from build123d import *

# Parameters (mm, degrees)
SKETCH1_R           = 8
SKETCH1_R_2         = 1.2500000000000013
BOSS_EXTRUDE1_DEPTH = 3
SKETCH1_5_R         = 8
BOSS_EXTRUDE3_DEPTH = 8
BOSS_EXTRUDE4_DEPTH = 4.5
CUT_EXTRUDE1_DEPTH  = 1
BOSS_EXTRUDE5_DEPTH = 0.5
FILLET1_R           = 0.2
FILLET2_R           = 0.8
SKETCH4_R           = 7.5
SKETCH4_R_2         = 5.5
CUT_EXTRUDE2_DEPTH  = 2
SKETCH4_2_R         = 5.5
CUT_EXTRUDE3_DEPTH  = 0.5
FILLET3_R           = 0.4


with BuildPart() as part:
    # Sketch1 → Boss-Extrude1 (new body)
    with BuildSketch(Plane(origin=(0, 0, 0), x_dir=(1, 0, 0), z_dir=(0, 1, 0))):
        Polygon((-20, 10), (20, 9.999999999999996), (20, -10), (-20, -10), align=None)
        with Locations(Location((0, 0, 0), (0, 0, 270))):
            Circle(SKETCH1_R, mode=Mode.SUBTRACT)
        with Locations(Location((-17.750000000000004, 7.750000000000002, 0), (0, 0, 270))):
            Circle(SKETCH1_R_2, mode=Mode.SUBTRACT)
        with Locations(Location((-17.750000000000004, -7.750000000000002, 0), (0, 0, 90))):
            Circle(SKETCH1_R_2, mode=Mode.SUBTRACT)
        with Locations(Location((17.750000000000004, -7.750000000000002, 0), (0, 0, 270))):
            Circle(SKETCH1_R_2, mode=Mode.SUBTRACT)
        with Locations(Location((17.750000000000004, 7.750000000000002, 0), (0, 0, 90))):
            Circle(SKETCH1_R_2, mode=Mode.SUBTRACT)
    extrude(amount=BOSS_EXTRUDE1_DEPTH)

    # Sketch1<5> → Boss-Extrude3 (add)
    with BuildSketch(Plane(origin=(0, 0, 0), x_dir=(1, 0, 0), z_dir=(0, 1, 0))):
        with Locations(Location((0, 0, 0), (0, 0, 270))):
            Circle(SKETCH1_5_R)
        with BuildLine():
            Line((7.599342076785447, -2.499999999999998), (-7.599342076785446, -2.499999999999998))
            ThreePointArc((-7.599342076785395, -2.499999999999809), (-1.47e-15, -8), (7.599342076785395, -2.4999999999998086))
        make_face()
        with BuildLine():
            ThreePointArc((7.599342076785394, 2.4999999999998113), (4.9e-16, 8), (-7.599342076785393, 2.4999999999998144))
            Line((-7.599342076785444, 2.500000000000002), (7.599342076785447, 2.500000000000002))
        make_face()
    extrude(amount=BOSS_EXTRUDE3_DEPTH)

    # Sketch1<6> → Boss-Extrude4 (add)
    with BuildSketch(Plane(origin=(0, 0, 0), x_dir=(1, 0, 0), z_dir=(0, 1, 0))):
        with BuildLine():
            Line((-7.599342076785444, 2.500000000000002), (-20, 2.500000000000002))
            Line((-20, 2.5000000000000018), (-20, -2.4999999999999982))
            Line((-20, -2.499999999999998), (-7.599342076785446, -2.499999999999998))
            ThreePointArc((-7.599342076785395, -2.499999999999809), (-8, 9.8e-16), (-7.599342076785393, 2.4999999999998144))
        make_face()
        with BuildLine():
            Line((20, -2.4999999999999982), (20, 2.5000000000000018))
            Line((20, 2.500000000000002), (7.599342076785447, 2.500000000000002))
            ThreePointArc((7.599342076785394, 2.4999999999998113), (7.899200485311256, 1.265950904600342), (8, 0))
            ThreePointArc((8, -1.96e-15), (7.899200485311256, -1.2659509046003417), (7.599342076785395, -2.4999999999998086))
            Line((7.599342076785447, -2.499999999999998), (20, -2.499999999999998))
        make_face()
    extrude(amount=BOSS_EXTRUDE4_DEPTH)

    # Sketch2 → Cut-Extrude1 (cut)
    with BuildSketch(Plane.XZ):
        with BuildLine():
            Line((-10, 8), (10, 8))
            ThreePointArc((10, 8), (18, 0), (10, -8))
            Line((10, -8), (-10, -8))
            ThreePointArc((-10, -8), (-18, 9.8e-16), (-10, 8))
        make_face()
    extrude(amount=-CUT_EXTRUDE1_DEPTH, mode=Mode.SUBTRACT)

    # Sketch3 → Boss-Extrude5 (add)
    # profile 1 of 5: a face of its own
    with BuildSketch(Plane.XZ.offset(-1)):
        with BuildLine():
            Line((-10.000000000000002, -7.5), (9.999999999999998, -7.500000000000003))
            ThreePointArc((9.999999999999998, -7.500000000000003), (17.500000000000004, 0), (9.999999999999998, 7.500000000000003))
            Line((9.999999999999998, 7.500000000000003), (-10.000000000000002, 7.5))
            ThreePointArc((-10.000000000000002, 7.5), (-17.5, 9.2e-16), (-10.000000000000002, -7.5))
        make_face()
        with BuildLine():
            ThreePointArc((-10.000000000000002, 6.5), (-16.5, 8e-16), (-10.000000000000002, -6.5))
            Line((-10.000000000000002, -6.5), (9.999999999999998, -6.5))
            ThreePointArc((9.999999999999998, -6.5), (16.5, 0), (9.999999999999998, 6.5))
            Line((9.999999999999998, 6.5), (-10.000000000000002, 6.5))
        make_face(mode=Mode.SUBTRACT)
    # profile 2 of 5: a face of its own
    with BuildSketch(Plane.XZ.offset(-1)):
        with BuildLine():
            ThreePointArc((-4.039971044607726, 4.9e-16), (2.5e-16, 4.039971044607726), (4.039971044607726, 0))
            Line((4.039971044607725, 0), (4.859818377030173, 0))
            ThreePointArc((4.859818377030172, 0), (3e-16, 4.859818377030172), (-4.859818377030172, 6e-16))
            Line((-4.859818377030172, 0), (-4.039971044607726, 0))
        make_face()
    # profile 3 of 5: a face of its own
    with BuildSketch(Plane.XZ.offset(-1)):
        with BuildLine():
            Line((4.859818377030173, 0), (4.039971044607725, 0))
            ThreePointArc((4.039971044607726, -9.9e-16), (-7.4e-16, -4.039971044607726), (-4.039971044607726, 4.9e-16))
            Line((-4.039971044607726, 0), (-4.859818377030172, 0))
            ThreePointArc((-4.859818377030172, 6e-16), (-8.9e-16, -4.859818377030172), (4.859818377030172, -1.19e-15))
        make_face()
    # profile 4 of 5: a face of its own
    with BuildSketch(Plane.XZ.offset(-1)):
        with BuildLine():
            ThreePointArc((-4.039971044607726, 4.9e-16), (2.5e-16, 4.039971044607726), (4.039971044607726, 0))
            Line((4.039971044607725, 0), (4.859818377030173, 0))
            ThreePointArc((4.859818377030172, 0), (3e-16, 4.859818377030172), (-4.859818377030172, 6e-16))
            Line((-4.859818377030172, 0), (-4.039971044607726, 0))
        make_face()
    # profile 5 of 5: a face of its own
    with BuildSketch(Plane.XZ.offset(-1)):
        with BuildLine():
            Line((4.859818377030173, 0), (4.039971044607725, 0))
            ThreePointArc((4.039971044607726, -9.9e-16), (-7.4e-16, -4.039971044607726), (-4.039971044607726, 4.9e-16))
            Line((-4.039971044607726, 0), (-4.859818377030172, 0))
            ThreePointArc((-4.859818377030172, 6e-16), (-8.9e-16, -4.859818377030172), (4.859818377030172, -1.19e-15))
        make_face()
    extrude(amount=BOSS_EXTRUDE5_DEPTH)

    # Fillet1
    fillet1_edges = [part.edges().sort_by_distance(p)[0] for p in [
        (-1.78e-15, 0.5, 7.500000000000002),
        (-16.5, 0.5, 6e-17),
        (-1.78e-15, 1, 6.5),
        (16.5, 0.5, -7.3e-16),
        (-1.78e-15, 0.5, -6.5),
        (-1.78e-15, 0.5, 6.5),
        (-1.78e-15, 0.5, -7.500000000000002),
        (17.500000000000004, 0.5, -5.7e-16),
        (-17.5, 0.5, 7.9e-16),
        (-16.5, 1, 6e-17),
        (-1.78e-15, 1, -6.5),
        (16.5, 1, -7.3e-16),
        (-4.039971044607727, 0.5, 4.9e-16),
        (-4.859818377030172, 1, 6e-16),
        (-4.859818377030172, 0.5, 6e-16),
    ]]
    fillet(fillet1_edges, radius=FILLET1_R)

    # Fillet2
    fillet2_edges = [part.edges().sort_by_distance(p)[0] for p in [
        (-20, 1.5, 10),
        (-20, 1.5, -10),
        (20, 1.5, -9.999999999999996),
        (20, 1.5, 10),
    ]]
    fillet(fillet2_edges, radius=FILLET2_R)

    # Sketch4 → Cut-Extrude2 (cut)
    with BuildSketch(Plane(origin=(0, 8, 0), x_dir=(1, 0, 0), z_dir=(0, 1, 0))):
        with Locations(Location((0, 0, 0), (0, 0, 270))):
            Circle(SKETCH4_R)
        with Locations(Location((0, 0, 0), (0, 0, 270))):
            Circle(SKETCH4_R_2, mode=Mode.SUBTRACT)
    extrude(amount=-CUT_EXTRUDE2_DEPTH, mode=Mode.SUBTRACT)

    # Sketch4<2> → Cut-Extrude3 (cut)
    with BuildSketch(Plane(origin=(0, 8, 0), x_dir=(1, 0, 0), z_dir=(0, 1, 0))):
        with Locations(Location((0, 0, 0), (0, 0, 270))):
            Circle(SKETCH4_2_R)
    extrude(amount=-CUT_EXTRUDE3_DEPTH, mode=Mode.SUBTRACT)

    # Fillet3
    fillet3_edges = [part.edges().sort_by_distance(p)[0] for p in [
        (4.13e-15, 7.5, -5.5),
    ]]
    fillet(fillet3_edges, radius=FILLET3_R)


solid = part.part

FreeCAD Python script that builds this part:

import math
import FreeCAD as App
import Part
import Sketcher
from FreeCAD import Vector
Q = App.Units.Quantity


def edges_at(feature, points):
    """Names of the edges that pass closest to the given points."""
    edges = feature.Shape.Edges
    near = lambda p: min(range(len(edges)), key=lambda i: edges[i].distToShape(Part.Vertex(*p))[0])
    return sorted({f"Edge{near(p) + 1}" for p in points})

doc = App.newDocument("Part")
body = doc.addObject("PartDesign::Body", "Body")

sketch1 = body.newObject("Sketcher::SketchObject", "Sketch")
sketch1.AttachmentSupport = (doc.getObject("XZ_Plane"), [""])
sketch1.MapMode = "FlatFace"
sketch1.addGeometry([
    Part.LineSegment(Vector(20, -10, 0), Vector(-20, -10, 0)),
    Part.LineSegment(Vector(-20, -10, 0), Vector(-20, 10, 0)),
    Part.LineSegment(Vector(-20, 10, 0), Vector(20, 10, 0)),
    Part.LineSegment(Vector(20, 10, 0), Vector(20, -10, 0)),
    Part.Circle(Vector(17.75, 7.75, 0), Vector(0, 0, 1), 1.25),
    Part.Circle(Vector(-17.75, 7.75, 0), Vector(0, 0, 1), 1.25),
    Part.Circle(Vector(17.75, -7.75, 0), Vector(0, 0, 1), 1.25),
    Part.Circle(Vector(0, 0, 0), Vector(0, 0, 1), 8),
    Part.Circle(Vector(-17.75, -7.75, 0), Vector(0, 0, 1), 1.25),
], False)
sketch1.addConstraint([
    Sketcher.Constraint("Coincident", 0, 2, 1, 1),
    Sketcher.Constraint("Coincident", 1, 2, 2, 1),
    Sketcher.Constraint("Coincident", 2, 2, 3, 1),
    Sketcher.Constraint("Coincident", 3, 2, 0, 1),
    Sketcher.Constraint("Horizontal", 0),
    Sketcher.Constraint("Vertical", 1),
    Sketcher.Constraint("Horizontal", 2),
    Sketcher.Constraint("Vertical", 3),
    Sketcher.Constraint("Coincident", 7, 3, -1, 1),
    Sketcher.Constraint("Equal", 4, 5),
    Sketcher.Constraint("Equal", 5, 6),
    Sketcher.Constraint("Equal", 6, 8),
    Sketcher.Constraint("Symmetric", 5, 3, 6, 3, -1, 1),
    Sketcher.Constraint("Symmetric", 4, 3, 8, 3, -1, 1),
    Sketcher.Constraint("Symmetric", 0, 2, 2, 2, -1, 1),
    Sketcher.Constraint("Symmetric", 4, 3, 5, 3, -2),
    Sketcher.Constraint("Diameter", 7, Q("16 mm")),
    Sketcher.Constraint("Diameter", 4, Q("2.5 mm")),
    Sketcher.Constraint("DistanceX", 0, 2, 0, 1, Q("40 mm")),
    Sketcher.Constraint("DistanceY", 1, 1, 1, 2, Q("20 mm")),
    Sketcher.Constraint("DistanceX", 5, 3, 4, 3, Q("35.5 mm")),
    Sketcher.Constraint("DistanceY", 6, 3, 4, 3, Q("15.5 mm")),
])
pad1 = body.newObject("PartDesign::Pad", "Pad")
pad1.Profile = sketch1
pad1.Length = 3
pad1.Reversed = True

sketch2 = body.newObject("Sketcher::SketchObject", "Sketch001")
sketch2.AttachmentSupport = (doc.getObject("XZ_Plane"), [""])
sketch2.MapMode = "FlatFace"
sketch2.addGeometry(Part.Circle(Vector(0, 0, 0), Vector(0, 0, 1), 8), False)
sketch2.addConstraint([
    Sketcher.Constraint("Coincident", 0, 3, -1, 1),
    Sketcher.Constraint("Diameter", 0, Q("16 mm")),
])
pad2 = body.newObject("PartDesign::Pad", "Pad001")
pad2.Profile = sketch2
pad2.Length = 8
pad2.Reversed = True

sketch3 = body.newObject("Sketcher::SketchObject", "Sketch002")
sketch3.AttachmentSupport = (doc.getObject("XZ_Plane"), [""])
sketch3.MapMode = "FlatFace"
sketch3.addGeometry([
    Part.LineSegment(Vector(-7.599342, -2.5, 0), Vector(-20, -2.5, 0)),
    Part.LineSegment(Vector(-20, -2.5, 0), Vector(-20, 2.5, 0)),
    Part.LineSegment(Vector(-20, 2.5, 0), Vector(-7.599342, 2.5, 0)),
    Part.ArcOfCircle(Part.Circle(Vector(0, 0, 0), Vector(0, 0, 1), 8), math.radians(161.790043), math.radians(198.209957)),
    Part.LineSegment(Vector(20, 2.5, 0), Vector(20, -2.5, 0)),
    Part.LineSegment(Vector(20, -2.5, 0), Vector(7.599342, -2.5, 0)),
    Part.ArcOfCircle(Part.Circle(Vector(0, 0, 0), Vector(0, 0, 1), 8), math.radians(-18.209957), math.radians(18.209957)),
    Part.LineSegment(Vector(7.599342, 2.5, 0), Vector(20, 2.5, 0)),
], False)
sketch3.addConstraint([
    Sketcher.Constraint("Coincident", 0, 2, 1, 1),
    Sketcher.Constraint("Coincident", 1, 2, 2, 1),
    Sketcher.Constraint("Coincident", 2, 2, 3, 1),
    Sketcher.Constraint("Coincident", 3, 2, 0, 1),
    Sketcher.Constraint("Coincident", 4, 2, 5, 1),
    Sketcher.Constraint("Coincident", 5, 2, 6, 1),
    Sketcher.Constraint("Coincident", 6, 2, 7, 1),
    Sketcher.Constraint("Coincident", 7, 2, 4, 1),
    Sketcher.Constraint("Horizontal", 0),
    Sketcher.Constraint("Vertical", 1),
    Sketcher.Constraint("Horizontal", 2),
    Sketcher.Constraint("Vertical", 4),
    Sketcher.Constraint("Horizontal", 5),
    Sketcher.Constraint("Horizontal", 7),
    Sketcher.Constraint("Coincident", 3, 3, -1, 1),
    Sketcher.Constraint("Coincident", 6, 3, -1, 1),
    Sketcher.Constraint("Equal", 3, 6),
    Sketcher.Constraint("Symmetric", 1, 2, 4, 2, -1, 1),
    Sketcher.Constraint("Horizontal", 3, 2, 4, 2),
    Sketcher.Constraint("Horizontal", 2, 2, 6, 2),
    Sketcher.Constraint("Radius", 3, Q("8 mm")),
    Sketcher.Constraint("DistanceY", 1, 1, 1, 2, Q("5 mm")),
    Sketcher.Constraint("DistanceX", 0, 2, -1, 1, Q("20 mm")),
])
pad3 = body.newObject("PartDesign::Pad", "Pad002")
pad3.Profile = sketch3
pad3.Length = 4.5
pad3.Reversed = True

sketch4 = body.newObject("Sketcher::SketchObject", "Sketch003")
sketch4.AttachmentSupport = (doc.getObject("XZ_Plane"), [""])
sketch4.MapMode = "FlatFace"
sketch4.addGeometry([
    Part.LineSegment(Vector(10, 8, 0), Vector(-10, 8, 0)),
    Part.ArcOfCircle(Part.Circle(Vector(-10, 0, 0), Vector(0, 0, 1), 8), math.radians(90), math.radians(270)),
    Part.LineSegment(Vector(-10, -8, 0), Vector(10, -8, 0)),
    Part.ArcOfCircle(Part.Circle(Vector(10, 0, 0), Vector(0, 0, 1), 8), math.radians(-90), math.radians(90)),
], False)
sketch4.addConstraint([
    Sketcher.Constraint("Tangent", 0, 2, 1, 1),
    Sketcher.Constraint("Tangent", 1, 2, 2, 1),
    Sketcher.Constraint("Tangent", 2, 2, 3, 1),
    Sketcher.Constraint("Tangent", 3, 2, 0, 1),
    Sketcher.Constraint("Horizontal", 0),
    Sketcher.Constraint("Horizontal", 2),
    Sketcher.Constraint("Symmetric", 1, 3, 3, 3, -1, 1),
    Sketcher.Constraint("Radius", 1, Q("8 mm")),
    Sketcher.Constraint("DistanceX", 0, 2, 0, 1, Q("20 mm")),
])
pocket1 = body.newObject("PartDesign::Pocket", "Pocket")
pocket1.Profile = sketch4
pocket1.Length = 1

sketch5 = body.newObject("Sketcher::SketchObject", "Sketch004")
sketch5.AttachmentSupport = (doc.getObject("XZ_Plane"), [""])
sketch5.MapMode = "FlatFace"
sketch5.AttachmentOffset = App.Placement(Vector(0, 0, -1), App.Rotation())
sketch5.addGeometry([
    Part.LineSegment(Vector(-10, -7.5, 0), Vector(10, -7.5, 0)),
    Part.ArcOfCircle(Part.Circle(Vector(10, 0, 0), Vector(0, 0, 1), 7.5), math.radians(-90), math.radians(90)),
    Part.LineSegment(Vector(10, 7.5, 0), Vector(-10, 7.5, 0)),
    Part.ArcOfCircle(Part.Circle(Vector(-10, 0, 0), Vector(0, 0, 1), 7.5), math.radians(90), math.radians(270)),
    Part.ArcOfCircle(Part.Circle(Vector(-10, 0, 0), Vector(0, 0, 1), 6.5), math.radians(90), math.radians(270)),
    Part.LineSegment(Vector(-10, 6.5, 0), Vector(10, 6.5, 0)),
    Part.ArcOfCircle(Part.Circle(Vector(10, 0, 0), Vector(0, 0, 1), 6.5), math.radians(-90), math.radians(90)),
    Part.LineSegment(Vector(10, -6.5, 0), Vector(-10, -6.5, 0)),
    Part.Circle(Vector(0, 0, 0), Vector(0, 0, 1), 4.859818),
    Part.Circle(Vector(0, 0, 0), Vector(0, 0, 1), 4.039971),
], False)
sketch5.addConstraint([
    Sketcher.Constraint("Tangent", 0, 2, 1, 1),
    Sketcher.Constraint("Tangent", 1, 2, 2, 1),
    Sketcher.Constraint("Tangent", 2, 2, 3, 1),
    Sketcher.Constraint("Tangent", 3, 2, 0, 1),
    Sketcher.Constraint("Tangent", 4, 1, 5, 1),
    Sketcher.Constraint("Tangent", 5, 2, 6, 2),
    Sketcher.Constraint("Tangent", 6, 1, 7, 1),
    Sketcher.Constraint("Tangent", 7, 2, 4, 2),
    Sketcher.Constraint("Horizontal", 0),
    Sketcher.Constraint("Horizontal", 2),
    Sketcher.Constraint("Horizontal", 5),
    Sketcher.Constraint("Horizontal", 7),
    Sketcher.Constraint("Coincident", 8, 3, -1, 1),
    Sketcher.Constraint("Coincident", 9, 3, -1, 1),
    Sketcher.Constraint("Coincident", 4, 3, 3, 3),
    Sketcher.Constraint("Symmetric", 1, 3, 3, 3, -1, 1),
    Sketcher.Constraint("Vertical", 6, 3, 0, 2),
    Sketcher.Constraint("Radius", 1, Q("7.5 mm")),
    Sketcher.Constraint("Radius", 4, Q("6.5 mm")),
    Sketcher.Constraint("DistanceX", 0, 1, 0, 2, Q("20 mm")),
    Sketcher.Constraint("Diameter", 8, Q("9.719637 mm")),
    Sketcher.Constraint("Diameter", 9, Q("8.079942 mm")),
])
pad4 = body.newObject("PartDesign::Pad", "Pad003")
pad4.Profile = sketch5
pad4.Length = 0.5
doc.recompute()

fillet = body.newObject("PartDesign::Fillet", "Fillet")
fillet.Base = (pad4, edges_at(pad4, [
    (0, 0.5, 7.5),
    (-16.5, 0.5, 0),
    (0, 1, 6.5),
    (16.5, 0.5, 0),
    (0, 0.5, -6.5),
    (0, 0.5, 6.5),
    (0, 0.5, -7.5),
    (17.5, 0.5, 0),
    (-17.5, 0.5, 0),
    (-16.5, 1, 0),
    (0, 1, -6.5),
    (16.5, 1, 0),
    (-4.04, 0.5, 0),
    (-4.86, 1, 0),
    (-4.86, 0.5, 0),
]))
fillet.Radius = 0.2
doc.recompute()

fillet2 = body.newObject("PartDesign::Fillet", "Fillet001")
fillet2.Base = (fillet, edges_at(fillet, [
    (-20, 1.5, 10),
    (-20, 1.5, -10),
    (20, 1.5, -10),
    (20, 1.5, 10),
]))
fillet2.Radius = 0.8

sketch6 = body.newObject("Sketcher::SketchObject", "Sketch005")
sketch6.AttachmentSupport = (doc.getObject("XZ_Plane"), [""])
sketch6.MapMode = "FlatFace"
sketch6.AttachmentOffset = App.Placement(Vector(0, 0, -8), App.Rotation())
sketch6.addGeometry([
    Part.Circle(Vector(0, 0, 0), Vector(0, 0, 1), 7.5),
    Part.Circle(Vector(0, 0, 0), Vector(0, 0, 1), 5.5),
], False)
sketch6.addConstraint([
    Sketcher.Constraint("Coincident", 0, 3, -1, 1),
    Sketcher.Constraint("Coincident", 1, 3, -1, 1),
    Sketcher.Constraint("Diameter", 0, Q("15 mm")),
    Sketcher.Constraint("Diameter", 1, Q("11 mm")),
])
pocket2 = body.newObject("PartDesign::Pocket", "Pocket001")
pocket2.Profile = sketch6
pocket2.Length = 2
pocket2.Reversed = True

sketch7 = body.newObject("Sketcher::SketchObject", "Sketch006")
sketch7.AttachmentSupport = (doc.getObject("XZ_Plane"), [""])
sketch7.MapMode = "FlatFace"
sketch7.AttachmentOffset = App.Placement(Vector(0, 0, -8), App.Rotation())
sketch7.addGeometry(Part.Circle(Vector(0, 0, 0), Vector(0, 0, 1), 5.5), False)
sketch7.addConstraint([
    Sketcher.Constraint("Coincident", 0, 3, -1, 1),
    Sketcher.Constraint("Diameter", 0, Q("11 mm")),
])
pocket3 = body.newObject("PartDesign::Pocket", "Pocket002")
pocket3.Profile = sketch7
pocket3.Length = 0.5
pocket3.Reversed = True
doc.recompute()

fillet3 = body.newObject("PartDesign::Fillet", "Fillet002")
fillet3.Base = (pocket3, edges_at(pocket3, [(0, 7.5, -5.5)]))
fillet3.Radius = 0.4

doc.recompute()
